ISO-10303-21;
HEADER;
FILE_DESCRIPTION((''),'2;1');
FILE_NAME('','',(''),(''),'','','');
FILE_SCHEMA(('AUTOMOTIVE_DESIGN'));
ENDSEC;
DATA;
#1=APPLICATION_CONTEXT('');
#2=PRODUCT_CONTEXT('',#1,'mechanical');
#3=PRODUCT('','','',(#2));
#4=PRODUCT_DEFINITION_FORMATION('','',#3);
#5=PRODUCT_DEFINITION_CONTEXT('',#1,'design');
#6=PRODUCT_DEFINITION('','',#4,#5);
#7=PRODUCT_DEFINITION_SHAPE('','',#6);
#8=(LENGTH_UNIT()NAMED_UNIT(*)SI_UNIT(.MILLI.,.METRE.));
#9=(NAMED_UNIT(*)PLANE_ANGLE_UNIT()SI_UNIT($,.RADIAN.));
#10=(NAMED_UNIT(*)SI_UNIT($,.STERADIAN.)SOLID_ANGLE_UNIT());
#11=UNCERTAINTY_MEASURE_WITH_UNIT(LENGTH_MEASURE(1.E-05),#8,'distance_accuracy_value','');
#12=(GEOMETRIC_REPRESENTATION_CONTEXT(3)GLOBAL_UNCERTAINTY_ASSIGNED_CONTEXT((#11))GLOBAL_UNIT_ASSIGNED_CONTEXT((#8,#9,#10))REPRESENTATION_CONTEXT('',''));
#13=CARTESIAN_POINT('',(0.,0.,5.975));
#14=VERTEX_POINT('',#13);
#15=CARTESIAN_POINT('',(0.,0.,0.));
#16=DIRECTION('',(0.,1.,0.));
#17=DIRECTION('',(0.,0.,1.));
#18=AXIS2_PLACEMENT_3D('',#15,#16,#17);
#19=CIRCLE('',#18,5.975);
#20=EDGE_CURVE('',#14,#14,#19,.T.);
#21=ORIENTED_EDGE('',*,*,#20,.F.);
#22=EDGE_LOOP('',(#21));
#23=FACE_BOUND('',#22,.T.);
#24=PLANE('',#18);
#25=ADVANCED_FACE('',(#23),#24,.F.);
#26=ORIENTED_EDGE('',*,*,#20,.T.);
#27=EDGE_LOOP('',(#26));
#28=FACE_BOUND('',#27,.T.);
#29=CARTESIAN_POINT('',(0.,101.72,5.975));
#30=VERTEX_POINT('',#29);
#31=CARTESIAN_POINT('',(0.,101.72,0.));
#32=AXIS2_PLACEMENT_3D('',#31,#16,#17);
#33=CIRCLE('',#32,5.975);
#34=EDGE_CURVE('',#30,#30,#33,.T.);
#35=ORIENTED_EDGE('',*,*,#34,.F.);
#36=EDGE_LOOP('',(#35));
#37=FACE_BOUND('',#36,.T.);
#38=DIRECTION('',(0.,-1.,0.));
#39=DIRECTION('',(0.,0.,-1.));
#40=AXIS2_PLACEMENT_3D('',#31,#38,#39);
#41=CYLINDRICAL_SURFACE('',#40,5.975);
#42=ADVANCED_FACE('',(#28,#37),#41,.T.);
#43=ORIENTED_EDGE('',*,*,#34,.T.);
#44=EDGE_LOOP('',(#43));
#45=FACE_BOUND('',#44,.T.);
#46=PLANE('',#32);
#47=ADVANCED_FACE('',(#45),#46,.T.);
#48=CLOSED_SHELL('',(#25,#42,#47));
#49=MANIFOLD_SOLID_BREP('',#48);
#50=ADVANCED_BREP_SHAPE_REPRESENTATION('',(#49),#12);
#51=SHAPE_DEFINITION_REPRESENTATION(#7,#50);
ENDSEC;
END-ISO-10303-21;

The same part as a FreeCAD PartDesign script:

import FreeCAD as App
import Part
import Sketcher

doc = App.newDocument("Part")
body = doc.addObject("PartDesign::Body", "Body")

sketch1 = body.newObject("Sketcher::SketchObject", "Sketch")
sketch1.AttachmentSupport = (doc.getObject("XZ_Plane"), [""])
sketch1.MapMode = "FlatFace"
sketch1.addGeometry(Part.Circle(App.Vector(0, 0, 0), App.Vector(0, 0, 1), 6), False)
sketch1.addConstraint(Sketcher.Constraint("Coincident", 0, 3, -1, 1))
sketch1.addConstraint(Sketcher.Constraint("Diameter", 0, 11.95))
pad1 = body.newObject("PartDesign::Pad", "Pad")
pad1.Profile = sketch1
pad1.Length = 101.72
pad1.Reversed = True

doc.recompute()
